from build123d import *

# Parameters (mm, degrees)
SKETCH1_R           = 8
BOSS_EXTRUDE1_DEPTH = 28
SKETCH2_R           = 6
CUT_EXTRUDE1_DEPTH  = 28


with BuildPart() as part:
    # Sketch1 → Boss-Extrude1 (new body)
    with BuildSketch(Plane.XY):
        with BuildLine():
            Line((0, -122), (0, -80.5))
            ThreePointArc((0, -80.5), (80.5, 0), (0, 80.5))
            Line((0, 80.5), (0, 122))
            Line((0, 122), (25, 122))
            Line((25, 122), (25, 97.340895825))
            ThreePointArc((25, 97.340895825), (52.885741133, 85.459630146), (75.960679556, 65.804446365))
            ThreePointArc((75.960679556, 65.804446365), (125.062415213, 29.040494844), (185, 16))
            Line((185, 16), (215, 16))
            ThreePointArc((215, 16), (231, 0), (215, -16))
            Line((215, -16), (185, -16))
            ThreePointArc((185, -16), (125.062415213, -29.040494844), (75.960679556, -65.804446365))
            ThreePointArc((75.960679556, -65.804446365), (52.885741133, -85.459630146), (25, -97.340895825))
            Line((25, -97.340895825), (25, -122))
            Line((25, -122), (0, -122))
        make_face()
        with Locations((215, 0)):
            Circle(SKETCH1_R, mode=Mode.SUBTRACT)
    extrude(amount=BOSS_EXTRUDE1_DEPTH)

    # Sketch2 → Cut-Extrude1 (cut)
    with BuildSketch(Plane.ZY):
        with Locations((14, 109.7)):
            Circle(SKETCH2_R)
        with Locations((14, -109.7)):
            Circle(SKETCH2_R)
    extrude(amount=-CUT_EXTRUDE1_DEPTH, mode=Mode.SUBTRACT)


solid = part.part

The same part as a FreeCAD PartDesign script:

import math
import FreeCAD as App
import Part
import Sketcher

doc = App.newDocument("Part")
params = doc.addObject("Spreadsheet::Sheet", "Params")
for row, (alias, value) in enumerate([
    ("sketch1_diameter", "16 mm"),
    ("sketch1_radius", "16 mm"),
    ("sketch1_radius2", "100.5 mm"),
    ("sketch1_radius3", "80.5 mm"),
    ("sketch1_width", "25 mm"),
    ("pad1_length", "28 mm"),
    ("sketch2_diameter", "12 mm"),
    ("pocket1_length", "28 mm"),
], start=1):
    params.set(f"A{row}", alias)
    params.set(f"B{row}", "=" + value)
    params.setAlias(f"B{row}", alias)

body = doc.addObject("PartDesign::Body", "Body")

# Sketch on XY plane
sketch1 = body.newObject("Sketcher::SketchObject", "Sketch")
sketch1.AttachmentSupport = (doc.getObject("XY_Plane"), [""])
sketch1.MapMode = "FlatFace"
sketch1.addGeometry([
    Part.LineSegment(App.Vector(0, -80, 0), App.Vector(0, -122, 0)),  # 0
    Part.LineSegment(App.Vector(0, -122, 0), App.Vector(25, -122, 0)),  # 1
    Part.LineSegment(App.Vector(25, -122, 0), App.Vector(25, -97, 0)),  # 2
    Part.ArcOfCircle(Part.Circle(App.Vector(0, 0, 0), App.Vector(0, 0, 1), 101), math.radians(-76), math.radians(-41)),  # 3
    Part.ArcOfCircle(Part.Circle(App.Vector(185, -160, 0), App.Vector(0, 0, 1), 144), math.radians(90), math.radians(139)),  # 4
    Part.LineSegment(App.Vector(185, -16, 0), App.Vector(215, -16, 0)),  # 5
    Part.ArcOfCircle(Part.Circle(App.Vector(215, 0, 0), App.Vector(0, 0, 1), 16), math.radians(-90), math.radians(90)),  # 6
    Part.LineSegment(App.Vector(215, 16, 0), App.Vector(185, 16, 0)),  # 7
    Part.ArcOfCircle(Part.Circle(App.Vector(185, 160, 0), App.Vector(0, 0, 1), 144), math.radians(-139), math.radians(-90)),  # 8
    Part.ArcOfCircle(Part.Circle(App.Vector(0, 0, 0), App.Vector(0, 0, 1), 101), math.radians(41), math.radians(76)),  # 9
    Part.LineSegment(App.Vector(25, 97, 0), App.Vector(25, 122, 0)),  # 10
    Part.LineSegment(App.Vector(25, 122, 0), App.Vector(0, 122, 0)),  # 11
    Part.LineSegment(App.Vector(0, 122, 0), App.Vector(0, 80, 0)),  # 12
    Part.ArcOfCircle(Part.Circle(App.Vector(0, 0, 0), App.Vector(0, 0, 1), 80), math.radians(-90), math.radians(90)),  # 13
    Part.Circle(App.Vector(215, 0, 0), App.Vector(0, 0, 1), 8),  # 14
], False)
sketch1.addConstraint([
    Sketcher.Constraint("Coincident", 0, 2, 1, 1),
    Sketcher.Constraint("Coincident", 1, 2, 2, 1),
    Sketcher.Constraint("Coincident", 2, 2, 3, 1),
    Sketcher.Constraint("Tangent", 3, 2, 4, 2),
    Sketcher.Constraint("Tangent", 4, 1, 5, 1),
    Sketcher.Constraint("Tangent", 5, 2, 6, 1),
    Sketcher.Constraint("Tangent", 6, 2, 7, 1),
    Sketcher.Constraint("Tangent", 7, 2, 8, 2),
    Sketcher.Constraint("Tangent", 8, 1, 9, 1),
    Sketcher.Constraint("Coincident", 9, 2, 10, 1),
    Sketcher.Constraint("Coincident", 10, 2, 11, 1),
    Sketcher.Constraint("Coincident", 11, 2, 12, 1),
    Sketcher.Constraint("Coincident", 12, 2, 13, 2),
    Sketcher.Constraint("Coincident", 13, 1, 0, 1),
    Sketcher.Constraint("Vertical", 0),
    Sketcher.Constraint("Horizontal", 1),
    Sketcher.Constraint("Vertical", 2),
    Sketcher.Constraint("Horizontal", 5),
    Sketcher.Constraint("Horizontal", 7),
    Sketcher.Constraint("Vertical", 10),
    Sketcher.Constraint("Horizontal", 11),
    Sketcher.Constraint("Vertical", 12),
    Sketcher.Constraint("Coincident", 3, 3, -1, 1),
    Sketcher.Constraint("Coincident", 9, 3, -1, 1),
    Sketcher.Constraint("Coincident", 13, 3, -1, 1),
    Sketcher.Constraint("Coincident", 14, 3, 6, 3),
    Sketcher.Constraint("Equal", 4, 8),
    Sketcher.Constraint("Equal", 3, 9),
    Sketcher.Constraint("Symmetric", 0, 2, 11, 2, -1, 1),
    Sketcher.Constraint("PointOnObject", 6, 3, -1),
    Sketcher.Constraint("PointOnObject", 0, 2, -2),
    Sketcher.Constraint("Vertical", 2, 2, 9, 2),
    Sketcher.Constraint("Diameter", 14, 16.0),
    Sketcher.Constraint("Radius", 6, 16.0),
    Sketcher.Constraint("Radius", 3, 100.5),
    Sketcher.Constraint("Radius", 13, 80.5),
    Sketcher.Constraint("DistanceX", 1, 1, 1, 2, 25.0),
    Sketcher.Constraint("DistanceX", 5, 1, 5, 2, 30.0),
    Sketcher.Constraint("DistanceY", 0, 2, 0, 1, 41.5),
    Sketcher.Constraint("DistanceX", -1, 1, 4, 3, 185.0),
])
sketch1.setExpression("Constraints[32]", "Params.sketch1_diameter")
sketch1.setExpression("Constraints[33]", "Params.sketch1_radius")
sketch1.setExpression("Constraints[34]", "Params.sketch1_radius2")
sketch1.setExpression("Constraints[35]", "Params.sketch1_radius3")
sketch1.setExpression("Constraints[36]", "Params.sketch1_width")
pad1 = body.newObject("PartDesign::Pad", "Pad")
pad1.Profile = sketch1
pad1.setExpression("Length", "Params.pad1_length")

# Sketch on YZ plane
sketch2 = body.newObject("Sketcher::SketchObject", "Sketch001")
sketch2.AttachmentSupport = (doc.getObject("YZ_Plane"), [""])
sketch2.MapMode = "FlatFace"
sketch2.addGeometry([
    Part.Circle(App.Vector(110, 14, 0), App.Vector(0, 0, 1), 6),
    Part.Circle(App.Vector(-110, 14, 0), App.Vector(0, 0, 1), 6),
], False)
sketch2.addConstraint([
    Sketcher.Constraint("Equal", 0, 1),
    Sketcher.Constraint("Symmetric", 0, 3, 1, 3, -2),
    Sketcher.Constraint("Diameter", 0, 12.0),
    Sketcher.Constraint("DistanceY", -1, 1, 0, 3, 14.0),
    Sketcher.Constraint("DistanceX", -1, 1, 0, 3, 109.7),
])
sketch2.setExpression("Constraints[2]", "Params.sketch2_diameter")
pocket1 = body.newObject("PartDesign::Pocket", "Pocket")
pocket1.Profile = sketch2
pocket1.setExpression("Length", "Params.pocket1_length")
pocket1.Reversed = True

doc.recompute()
